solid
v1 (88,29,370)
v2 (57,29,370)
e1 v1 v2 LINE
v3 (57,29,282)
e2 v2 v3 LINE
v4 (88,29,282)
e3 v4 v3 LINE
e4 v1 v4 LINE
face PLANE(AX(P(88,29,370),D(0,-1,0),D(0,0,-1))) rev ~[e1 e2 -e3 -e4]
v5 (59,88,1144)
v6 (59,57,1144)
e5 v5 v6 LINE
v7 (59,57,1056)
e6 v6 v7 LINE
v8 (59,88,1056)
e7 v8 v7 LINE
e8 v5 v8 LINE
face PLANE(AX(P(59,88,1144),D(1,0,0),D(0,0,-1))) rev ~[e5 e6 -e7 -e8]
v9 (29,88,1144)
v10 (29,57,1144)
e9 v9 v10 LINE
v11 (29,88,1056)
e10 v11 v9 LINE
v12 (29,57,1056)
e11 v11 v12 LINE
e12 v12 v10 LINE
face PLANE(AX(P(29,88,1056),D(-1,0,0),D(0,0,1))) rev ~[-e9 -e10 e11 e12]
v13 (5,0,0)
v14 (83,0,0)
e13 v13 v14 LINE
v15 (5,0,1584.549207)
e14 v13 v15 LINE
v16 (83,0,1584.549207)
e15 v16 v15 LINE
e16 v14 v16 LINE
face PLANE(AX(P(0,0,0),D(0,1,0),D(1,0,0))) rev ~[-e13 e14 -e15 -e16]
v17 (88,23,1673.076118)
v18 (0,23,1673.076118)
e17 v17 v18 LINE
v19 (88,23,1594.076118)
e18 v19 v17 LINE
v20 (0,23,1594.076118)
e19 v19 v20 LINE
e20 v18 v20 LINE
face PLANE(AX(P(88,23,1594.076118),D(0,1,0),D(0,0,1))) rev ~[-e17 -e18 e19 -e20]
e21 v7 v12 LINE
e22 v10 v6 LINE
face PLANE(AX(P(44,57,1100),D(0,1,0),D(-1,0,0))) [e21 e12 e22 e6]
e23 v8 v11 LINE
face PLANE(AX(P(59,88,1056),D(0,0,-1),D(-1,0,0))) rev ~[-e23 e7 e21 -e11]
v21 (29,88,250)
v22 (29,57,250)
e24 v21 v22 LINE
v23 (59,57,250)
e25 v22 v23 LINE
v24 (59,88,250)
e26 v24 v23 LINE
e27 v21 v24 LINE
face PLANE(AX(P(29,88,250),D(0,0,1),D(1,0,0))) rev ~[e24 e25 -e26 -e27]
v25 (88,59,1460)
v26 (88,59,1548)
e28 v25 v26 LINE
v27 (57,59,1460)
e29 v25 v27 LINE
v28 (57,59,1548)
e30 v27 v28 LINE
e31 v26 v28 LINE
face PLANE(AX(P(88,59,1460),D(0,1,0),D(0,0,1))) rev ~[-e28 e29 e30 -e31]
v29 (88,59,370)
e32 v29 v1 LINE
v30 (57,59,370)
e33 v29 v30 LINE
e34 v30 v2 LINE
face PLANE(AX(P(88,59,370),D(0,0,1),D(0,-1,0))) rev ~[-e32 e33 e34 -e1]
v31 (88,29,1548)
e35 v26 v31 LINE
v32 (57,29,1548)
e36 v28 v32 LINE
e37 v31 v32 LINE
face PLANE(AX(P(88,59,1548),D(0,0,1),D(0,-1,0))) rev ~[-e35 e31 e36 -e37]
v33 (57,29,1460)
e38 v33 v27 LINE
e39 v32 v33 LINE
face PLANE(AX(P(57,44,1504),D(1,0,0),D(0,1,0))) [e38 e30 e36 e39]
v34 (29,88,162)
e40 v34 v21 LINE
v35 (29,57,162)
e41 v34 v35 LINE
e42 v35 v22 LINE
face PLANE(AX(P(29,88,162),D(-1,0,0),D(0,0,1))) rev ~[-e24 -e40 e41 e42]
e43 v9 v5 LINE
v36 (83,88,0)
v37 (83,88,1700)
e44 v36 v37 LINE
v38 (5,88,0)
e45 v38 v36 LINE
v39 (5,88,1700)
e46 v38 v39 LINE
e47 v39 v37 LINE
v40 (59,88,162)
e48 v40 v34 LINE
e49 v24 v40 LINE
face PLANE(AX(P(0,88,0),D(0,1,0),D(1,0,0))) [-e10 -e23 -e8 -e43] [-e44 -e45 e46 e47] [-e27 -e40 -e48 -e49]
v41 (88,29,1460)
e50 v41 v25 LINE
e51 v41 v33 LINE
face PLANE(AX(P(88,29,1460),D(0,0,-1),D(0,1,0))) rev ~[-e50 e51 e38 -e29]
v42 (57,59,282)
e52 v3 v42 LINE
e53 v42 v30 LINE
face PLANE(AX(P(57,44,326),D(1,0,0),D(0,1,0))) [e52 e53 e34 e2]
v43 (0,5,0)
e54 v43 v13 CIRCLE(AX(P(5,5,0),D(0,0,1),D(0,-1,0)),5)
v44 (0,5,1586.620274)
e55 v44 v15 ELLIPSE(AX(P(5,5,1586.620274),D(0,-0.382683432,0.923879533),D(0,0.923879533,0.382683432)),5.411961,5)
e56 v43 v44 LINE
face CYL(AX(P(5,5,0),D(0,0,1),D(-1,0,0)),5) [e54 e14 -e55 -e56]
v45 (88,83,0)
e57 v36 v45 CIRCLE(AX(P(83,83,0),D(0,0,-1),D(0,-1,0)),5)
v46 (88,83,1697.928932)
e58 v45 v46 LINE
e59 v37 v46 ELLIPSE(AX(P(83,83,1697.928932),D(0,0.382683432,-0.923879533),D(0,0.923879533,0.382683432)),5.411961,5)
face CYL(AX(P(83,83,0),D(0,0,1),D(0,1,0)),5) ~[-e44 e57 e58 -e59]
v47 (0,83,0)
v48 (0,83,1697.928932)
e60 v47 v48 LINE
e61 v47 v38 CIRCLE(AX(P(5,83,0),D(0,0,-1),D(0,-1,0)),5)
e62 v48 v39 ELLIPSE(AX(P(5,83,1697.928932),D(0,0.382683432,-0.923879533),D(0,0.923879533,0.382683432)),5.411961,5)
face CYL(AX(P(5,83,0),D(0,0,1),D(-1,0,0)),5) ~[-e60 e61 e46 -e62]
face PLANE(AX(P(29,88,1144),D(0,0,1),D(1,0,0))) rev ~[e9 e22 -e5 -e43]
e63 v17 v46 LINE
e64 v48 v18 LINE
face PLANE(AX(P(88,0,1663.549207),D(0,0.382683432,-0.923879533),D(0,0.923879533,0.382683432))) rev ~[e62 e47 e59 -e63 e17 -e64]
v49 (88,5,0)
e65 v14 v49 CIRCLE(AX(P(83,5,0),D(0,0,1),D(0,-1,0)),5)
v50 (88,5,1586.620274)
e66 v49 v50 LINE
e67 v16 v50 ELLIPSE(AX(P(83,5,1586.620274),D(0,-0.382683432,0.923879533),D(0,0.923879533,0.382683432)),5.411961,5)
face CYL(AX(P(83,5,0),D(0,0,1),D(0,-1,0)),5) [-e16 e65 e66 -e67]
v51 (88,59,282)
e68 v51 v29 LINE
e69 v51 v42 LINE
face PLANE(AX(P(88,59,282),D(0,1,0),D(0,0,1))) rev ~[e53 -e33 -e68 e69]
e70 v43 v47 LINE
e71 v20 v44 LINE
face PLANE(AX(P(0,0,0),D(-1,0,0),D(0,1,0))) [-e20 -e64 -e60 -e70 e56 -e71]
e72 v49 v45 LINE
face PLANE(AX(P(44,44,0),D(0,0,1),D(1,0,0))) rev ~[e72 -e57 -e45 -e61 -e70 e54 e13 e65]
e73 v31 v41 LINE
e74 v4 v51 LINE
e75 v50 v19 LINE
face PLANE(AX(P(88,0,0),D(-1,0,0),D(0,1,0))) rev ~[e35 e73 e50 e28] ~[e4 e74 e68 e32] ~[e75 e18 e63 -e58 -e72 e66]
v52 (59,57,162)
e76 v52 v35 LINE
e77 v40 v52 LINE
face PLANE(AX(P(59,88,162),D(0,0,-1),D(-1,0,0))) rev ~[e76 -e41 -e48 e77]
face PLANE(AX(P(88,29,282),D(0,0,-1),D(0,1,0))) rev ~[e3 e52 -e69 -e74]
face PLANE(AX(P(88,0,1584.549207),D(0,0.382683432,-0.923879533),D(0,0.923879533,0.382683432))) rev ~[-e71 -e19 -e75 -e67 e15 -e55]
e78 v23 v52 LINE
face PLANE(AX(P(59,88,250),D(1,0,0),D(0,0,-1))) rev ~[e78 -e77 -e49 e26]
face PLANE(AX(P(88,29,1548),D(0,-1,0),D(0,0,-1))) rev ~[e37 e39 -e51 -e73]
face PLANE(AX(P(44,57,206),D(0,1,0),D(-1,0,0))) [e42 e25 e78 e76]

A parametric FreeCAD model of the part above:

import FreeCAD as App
import Part
import Sketcher

V = App.Vector
Q = App.Units.Quantity


def edges_at(feature, points):
    """Names of the edges that pass closest to the given points."""
    edges = feature.Shape.Edges
    near = lambda p: min(range(len(edges)), key=lambda i: edges[i].distToShape(Part.Vertex(*p))[0])
    return sorted({f"Edge{near(p) + 1}" for p in points})

doc = App.newDocument("Part")
params = doc.addObject("Spreadsheet::Sheet", "Params")
for row, (alias, value) in enumerate([
    ("sketch1_width", "88 mm"),
    ("pad1_length", "1700 mm"),
    ("sketch2_width", "30 mm"),
    ("sketch2_height", "88 mm"),
    ("pocket1_length", "31 mm"),
    ("sketch3_width", "30 mm"),
    ("sketch3_height", "88 mm"),
    ("pocket2_length", "31 mm"),
    ("sketch4_width", "88 mm"),
    ("sketch5_height", "79 mm"),
    ("sketch6_width", "30 mm"),
    ("sketch6_height", "88 mm"),
    ("pocket5_length", "31 mm"),
    ("sketch7_width", "30 mm"),
    ("sketch7_height", "88 mm"),
    ("pocket6_length", "31 mm"),
    ("fillet_radius", "5 mm"),
], start=1):
    params.set(f"A{row}", alias)
    params.set(f"B{row}", "=" + value)
    params.setAlias(f"B{row}", alias)

body = doc.addObject("PartDesign::Body", "Body")

sketch1 = doc.addObject("Sketcher::SketchObject", "Sketch")
body.addObject(sketch1)
sketch1.AttachmentSupport = (doc.XY_Plane, [""])
sketch1.MapMode = "FlatFace"
sketch1.addGeometry([
    Part.LineSegment(V(0, 88, 0), V(0, 0, 0)),
    Part.LineSegment(V(0, 0, 0), V(88, 0, 0)),
    Part.LineSegment(V(88, 0, 0), V(88, 88, 0)),
    Part.LineSegment(V(88, 88, 0), V(0, 88, 0)),
], False)
sketch1.addConstraint([
    Sketcher.Constraint("Coincident", 0, 2, 1, 1),
    Sketcher.Constraint("Coincident", 1, 2, 2, 1),
    Sketcher.Constraint("Coincident", 2, 2, 3, 1),
    Sketcher.Constraint("Coincident", 3, 2, 0, 1),
    Sketcher.Constraint("Vertical", 0),
    Sketcher.Constraint("Horizontal", 1),
    Sketcher.Constraint("Vertical", 2),
    Sketcher.Constraint("Horizontal", 3),
    Sketcher.Constraint("Coincident", 0, 2, -1, 1),
    Sketcher.Constraint("Equal", 3, 0),
    Sketcher.Constraint("DistanceX", 1, 1, 1, 2, Q("88 mm")),
])
sketch1.setExpression("Constraints[10]", "Params.sketch1_width")
pad1 = doc.addObject("PartDesign::Pad", "Pad")
body.addObject(pad1)
pad1.Profile = sketch1
pad1.setExpression("Length", "Params.pad1_length")

sketch2 = doc.addObject("Sketcher::SketchObject", "Sketch001")
body.addObject(sketch2)
sketch2.AttachmentSupport = (doc.YZ_Plane, [""])
sketch2.MapMode = "FlatFace"
sketch2.AttachmentOffset = App.Placement(V(0, 0, 88), App.Rotation())
sketch2.addGeometry([
    Part.LineSegment(V(29, 282, 0), V(59, 282, 0)),
    Part.LineSegment(V(59, 282, 0), V(59, 370, 0)),
    Part.LineSegment(V(59, 370, 0), V(29, 370, 0)),
    Part.LineSegment(V(29, 370, 0), V(29, 282, 0)),
], False)
sketch2.addConstraint([
    Sketcher.Constraint("Coincident", 0, 2, 1, 1),
    Sketcher.Constraint("Coincident", 1, 2, 2, 1),
    Sketcher.Constraint("Coincident", 2, 2, 3, 1),
    Sketcher.Constraint("Coincident", 3, 2, 0, 1),
    Sketcher.Constraint("Horizontal", 0),
    Sketcher.Constraint("Vertical", 1),
    Sketcher.Constraint("Horizontal", 2),
    Sketcher.Constraint("Vertical", 3),
    Sketcher.Constraint("DistanceX", 0, 1, 0, 2, Q("30 mm")),
    Sketcher.Constraint("DistanceY", 1, 1, 1, 2, Q("88 mm")),
    Sketcher.Constraint("DistanceX", -1, 1, 0, 2, Q("59 mm")),
    Sketcher.Constraint("DistanceY", -1, 1, 0, 2, Q("282 mm")),
])
sketch2.setExpression("Constraints[8]", "Params.sketch2_width")
sketch2.setExpression("Constraints[9]", "Params.sketch2_height")
pocket1 = doc.addObject("PartDesign::Pocket", "Pocket")
body.addObject(pocket1)
pocket1.Profile = sketch2
pocket1.setExpression("Length", "Params.pocket1_length")

sketch3 = doc.addObject("Sketcher::SketchObject", "Sketch002")
body.addObject(sketch3)
sketch3.AttachmentSupport = (doc.YZ_Plane, [""])
sketch3.MapMode = "FlatFace"
sketch3.AttachmentOffset = App.Placement(V(0, 0, 88), App.Rotation())
sketch3.addGeometry([
    Part.LineSegment(V(29, 1460, 0), V(59, 1460, 0)),
    Part.LineSegment(V(59, 1460, 0), V(59, 1548, 0)),
    Part.LineSegment(V(59, 1548, 0), V(29, 1548, 0)),
    Part.LineSegment(V(29, 1548, 0), V(29, 1460, 0)),
], False)
sketch3.addConstraint([
    Sketcher.Constraint("Coincident", 0, 2, 1, 1),
    Sketcher.Constraint("Coincident", 1, 2, 2, 1),
    Sketcher.Constraint("Coincident", 2, 2, 3, 1),
    Sketcher.Constraint("Coincident", 3, 2, 0, 1),
    Sketcher.Constraint("Horizontal", 0),
    Sketcher.Constraint("Vertical", 1),
    Sketcher.Constraint("Horizontal", 2),
    Sketcher.Constraint("Vertical", 3),
    Sketcher.Constraint("DistanceX", 0, 1, 0, 2, Q("30 mm")),
    Sketcher.Constraint("DistanceY", 1, 1, 1, 2, Q("88 mm")),
    Sketcher.Constraint("DistanceX", -1, 1, 0, 2, Q("59 mm")),
    Sketcher.Constraint("DistanceY", -1, 1, 0, 2, Q("1460 mm")),
])
sketch3.setExpression("Constraints[8]", "Params.sketch3_width")
sketch3.setExpression("Constraints[9]", "Params.sketch3_height")
pocket2 = doc.addObject("PartDesign::Pocket", "Pocket001")
body.addObject(pocket2)
pocket2.Profile = sketch3
pocket2.setExpression("Length", "Params.pocket2_length")

sketch4 = doc.addObject("Sketcher::SketchObject", "Sketch003")
body.addObject(sketch4)
sketch4.AttachmentSupport = (doc.YZ_Plane, [""])
sketch4.MapMode = "FlatFace"
sketch4.AttachmentOffset = App.Placement(V(0, 0, 88), App.Rotation())
sketch4.addGeometry([
    Part.LineSegment(V(0, 1664, 0), V(88, 1700, 0)),
    Part.LineSegment(V(88, 1700, 0), V(0, 1700, 0)),
    Part.LineSegment(V(0, 1700, 0), V(0, 1664, 0)),
], False)
sketch4.addConstraint([
    Sketcher.Constraint("Coincident", 0, 2, 1, 1),
    Sketcher.Constraint("Coincident", 1, 2, 2, 1),
    Sketcher.Constraint("Coincident", 2, 2, 0, 1),
    Sketcher.Constraint("Horizontal", 1),
    Sketcher.Constraint("Vertical", 2),
    Sketcher.Constraint("PointOnObject", 1, 2, -2),
    Sketcher.Constraint("DistanceX", 1, 2, 1, 1, Q("88 mm")),
    Sketcher.Constraint("DistanceY", -1, 1, 0, 2, Q("1700 mm")),
    Sketcher.Constraint("Angle", 0, Q("22.5 deg")),
])
sketch4.setExpression("Constraints[6]", "Params.sketch4_width")
pocket3 = doc.addObject("PartDesign::Pocket", "Pocket002")
body.addObject(pocket3)
pocket3.Profile = sketch4
pocket3.Type = "ThroughAll"

sketch5 = doc.addObject("Sketcher::SketchObject", "Sketch004")
body.addObject(sketch5)
sketch5.AttachmentSupport = (doc.YZ_Plane, [""])
sketch5.MapMode = "FlatFace"
sketch5.AttachmentOffset = App.Placement(V(0, 0, 88), App.Rotation())
sketch5.addGeometry([
    Part.LineSegment(V(23, 1594, 0), V(23, 1673, 0)),
    Part.LineSegment(V(23, 1673, 0), V(0, 1664, 0)),
    Part.LineSegment(V(0, 1664, 0), V(0, 1585, 0)),
    Part.LineSegment(V(0, 1585, 0), V(23, 1594, 0)),
], False)
sketch5.addConstraint([
    Sketcher.Constraint("Coincident", 0, 2, 1, 1),
    Sketcher.Constraint("Coincident", 1, 2, 2, 1),
    Sketcher.Constraint("Coincident", 2, 2, 3, 1),
    Sketcher.Constraint("Coincident", 3, 2, 0, 1),
    Sketcher.Constraint("Vertical", 0),
    Sketcher.Constraint("Vertical", 2),
    Sketcher.Constraint("PointOnObject", 1, 2, -2),
    Sketcher.Constraint("Parallel", 1, 3),
    Sketcher.Constraint("DistanceY", 0, 1, 0, 2, Q("79 mm")),
    Sketcher.Constraint("DistanceX", -1, 1, 0, 2, Q("23 mm")),
    Sketcher.Constraint("Angle", 1, Q("-157.5 deg")),
    Sketcher.Constraint("DistanceY", -1, 1, 0, 2, Q("1673.076118 mm")),
])
sketch5.setExpression("Constraints[8]", "Params.sketch5_height")
pocket4 = doc.addObject("PartDesign::Pocket", "Pocket003")
body.addObject(pocket4)
pocket4.Profile = sketch5
pocket4.Type = "ThroughAll"

sketch6 = doc.addObject("Sketcher::SketchObject", "Sketch005")
body.addObject(sketch6)
sketch6.AttachmentSupport = (doc.XZ_Plane, [""])
sketch6.MapMode = "FlatFace"
sketch6.AttachmentOffset = App.Placement(V(0, 0, -88), App.Rotation())
sketch6.addGeometry([
    Part.LineSegment(V(59, 162, 0), V(29, 162, 0)),
    Part.LineSegment(V(29, 162, 0), V(29, 250, 0)),
    Part.LineSegment(V(29, 250, 0), V(59, 250, 0)),
    Part.LineSegment(V(59, 250, 0), V(59, 162, 0)),
], False)
sketch6.addConstraint([
    Sketcher.Constraint("Coincident", 0, 2, 1, 1),
    Sketcher.Constraint("Coincident", 1, 2, 2, 1),
    Sketcher.Constraint("Coincident", 2, 2, 3, 1),
    Sketcher.Constraint("Coincident", 3, 2, 0, 1),
    Sketcher.Constraint("Horizontal", 0),
    Sketcher.Constraint("Vertical", 1),
    Sketcher.Constraint("Horizontal", 2),
    Sketcher.Constraint("Vertical", 3),
    Sketcher.Constraint("DistanceX", 0, 2, 0, 1, Q("30 mm")),
    Sketcher.Constraint("DistanceY", 1, 1, 1, 2, Q("88 mm")),
    Sketcher.Constraint("DistanceX", -1, 1, 0, 2, Q("29 mm")),
    Sketcher.Constraint("DistanceY", -1, 1, 0, 2, Q("162 mm")),
])
sketch6.setExpression("Constraints[8]", "Params.sketch6_width")
sketch6.setExpression("Constraints[9]", "Params.sketch6_height")
pocket5 = doc.addObject("PartDesign::Pocket", "Pocket004")
body.addObject(pocket5)
pocket5.Profile = sketch6
pocket5.setExpression("Length", "Params.pocket5_length")
pocket5.Reversed = True

sketch7 = doc.addObject("Sketcher::SketchObject", "Sketch006")
body.addObject(sketch7)
sketch7.AttachmentSupport = (doc.XZ_Plane, [""])
sketch7.MapMode = "FlatFace"
sketch7.AttachmentOffset = App.Placement(V(0, 0, -88), App.Rotation())
sketch7.addGeometry([
    Part.LineSegment(V(59, 1056, 0), V(29, 1056, 0)),
    Part.LineSegment(V(29, 1056, 0), V(29, 1144, 0)),
    Part.LineSegment(V(29, 1144, 0), V(59, 1144, 0)),
    Part.LineSegment(V(59, 1144, 0), V(59, 1056, 0)),
], False)
sketch7.addConstraint([
    Sketcher.Constraint("Coincident", 0, 2, 1, 1),
    Sketcher.Constraint("Coincident", 1, 2, 2, 1),
    Sketcher.Constraint("Coincident", 2, 2, 3, 1),
    Sketcher.Constraint("Coincident", 3, 2, 0, 1),
    Sketcher.Constraint("Horizontal", 0),
    Sketcher.Constraint("Vertical", 1),
    Sketcher.Constraint("Horizontal", 2),
    Sketcher.Constraint("Vertical", 3),
    Sketcher.Constraint("DistanceX", 0, 2, 0, 1, Q("30 mm")),
    Sketcher.Constraint("DistanceY", 1, 1, 1, 2, Q("88 mm")),
    Sketcher.Constraint("DistanceX", -1, 1, 0, 2, Q("29 mm")),
    Sketcher.Constraint("DistanceY", -1, 1, 0, 2, Q("1056 mm")),
])
sketch7.setExpression("Constraints[8]", "Params.sketch7_width")
sketch7.setExpression("Constraints[9]", "Params.sketch7_height")
pocket6 = doc.addObject("PartDesign::Pocket", "Pocket005")
body.addObject(pocket6)
pocket6.Profile = sketch7
pocket6.setExpression("Length", "Params.pocket6_length")
pocket6.Reversed = True
doc.recompute()

fillet = doc.addObject("PartDesign::Fillet", "Fillet")
body.addObject(fillet)
fillet.Base = (pocket6, edges_at(pocket6, [
    (88, 0, 792.275),
    (0, 0, 792.275),
    (88, 88, 850),
    (0, 88, 850),
]))
fillet.setExpression("Radius", "Params.fillet_radius")

doc.recompute()
